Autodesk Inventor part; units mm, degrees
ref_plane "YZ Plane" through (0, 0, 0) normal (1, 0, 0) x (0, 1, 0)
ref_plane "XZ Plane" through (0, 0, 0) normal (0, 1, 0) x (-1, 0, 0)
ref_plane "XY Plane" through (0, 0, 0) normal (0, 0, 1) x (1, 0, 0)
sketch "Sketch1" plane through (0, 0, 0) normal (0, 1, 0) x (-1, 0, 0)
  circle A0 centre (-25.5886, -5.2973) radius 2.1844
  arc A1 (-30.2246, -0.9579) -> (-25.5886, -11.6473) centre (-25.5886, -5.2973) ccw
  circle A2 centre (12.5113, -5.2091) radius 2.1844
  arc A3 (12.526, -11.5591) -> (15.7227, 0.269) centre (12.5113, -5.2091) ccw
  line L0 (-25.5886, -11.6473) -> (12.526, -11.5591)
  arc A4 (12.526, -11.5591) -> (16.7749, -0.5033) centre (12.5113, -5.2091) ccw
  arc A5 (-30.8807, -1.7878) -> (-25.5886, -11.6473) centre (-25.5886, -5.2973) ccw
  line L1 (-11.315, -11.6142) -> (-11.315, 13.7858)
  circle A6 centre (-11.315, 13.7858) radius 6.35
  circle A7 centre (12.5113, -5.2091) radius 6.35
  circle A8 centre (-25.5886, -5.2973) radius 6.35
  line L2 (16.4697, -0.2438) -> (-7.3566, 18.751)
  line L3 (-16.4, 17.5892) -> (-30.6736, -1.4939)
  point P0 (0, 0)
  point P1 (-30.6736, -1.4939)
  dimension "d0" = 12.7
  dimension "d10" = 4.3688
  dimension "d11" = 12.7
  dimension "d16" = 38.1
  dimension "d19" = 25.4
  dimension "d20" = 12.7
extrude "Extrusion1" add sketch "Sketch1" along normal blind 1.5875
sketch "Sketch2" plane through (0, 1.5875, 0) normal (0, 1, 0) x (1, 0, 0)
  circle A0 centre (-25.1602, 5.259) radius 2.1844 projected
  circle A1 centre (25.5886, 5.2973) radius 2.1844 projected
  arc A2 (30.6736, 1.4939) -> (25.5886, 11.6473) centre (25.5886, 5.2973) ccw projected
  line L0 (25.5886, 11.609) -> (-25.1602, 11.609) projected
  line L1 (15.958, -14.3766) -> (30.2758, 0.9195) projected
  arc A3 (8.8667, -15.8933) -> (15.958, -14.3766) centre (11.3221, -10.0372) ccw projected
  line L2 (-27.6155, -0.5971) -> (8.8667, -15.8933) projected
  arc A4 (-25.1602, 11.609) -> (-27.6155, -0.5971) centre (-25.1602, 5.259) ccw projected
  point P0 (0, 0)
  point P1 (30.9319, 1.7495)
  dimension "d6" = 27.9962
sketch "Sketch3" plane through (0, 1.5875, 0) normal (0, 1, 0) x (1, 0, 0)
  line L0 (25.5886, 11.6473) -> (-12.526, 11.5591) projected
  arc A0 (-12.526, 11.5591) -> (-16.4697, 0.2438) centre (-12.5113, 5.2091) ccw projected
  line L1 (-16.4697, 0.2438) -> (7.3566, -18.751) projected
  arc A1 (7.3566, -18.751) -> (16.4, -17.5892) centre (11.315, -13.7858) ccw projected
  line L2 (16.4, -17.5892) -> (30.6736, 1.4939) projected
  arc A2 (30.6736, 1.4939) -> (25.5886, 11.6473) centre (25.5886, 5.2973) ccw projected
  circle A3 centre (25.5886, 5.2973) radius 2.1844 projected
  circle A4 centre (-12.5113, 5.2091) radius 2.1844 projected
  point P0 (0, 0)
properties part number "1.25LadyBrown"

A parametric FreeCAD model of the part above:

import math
import FreeCAD as App
import Part
import Sketcher
from FreeCAD import Vector
Q = App.Units.Quantity

doc = App.newDocument("Part")
body = doc.addObject("PartDesign::Body", "Body")

# Sketch on XZ plane
sketch1 = body.newObject("Sketcher::SketchObject", "Sketch")
sketch1.AttachmentSupport = (doc.getObject("XZ_Plane"), [""])
sketch1.MapMode = "FlatFace"
sketch1.addGeometry([
    Part.LineSegment(Vector(25.5886, -11.6473, 0), Vector(-12.526, -11.5591, 0)),  # 0
    Part.ArcOfCircle(Part.Circle(Vector(-12.5113, -5.2091, 0), Vector(0, 0, 1), 6.350017), math.radians(128.562296), math.radians(269.867363)),  # 1
    Part.LineSegment(Vector(-16.4697, -0.2438, 0), Vector(7.3566, 18.751, 0)),  # 2
    Part.ArcOfCircle(Part.Circle(Vector(11.315, 13.7858, 0), Vector(0, 0, 1), 6.35), math.radians(36.795188), math.radians(128.562858)),  # 3
    Part.LineSegment(Vector(16.4, 17.5892, 0), Vector(30.6736, -1.4939, 0)),  # 4
    Part.ArcOfCircle(Part.Circle(Vector(25.5886, -5.2973, 0), Vector(0, 0, 1), 6.35), math.radians(-90), math.radians(36.795188)),  # 5
    Part.Circle(Vector(25.5886, -5.2973, 0), Vector(0, 0, 1), 2.1844),  # 6
    Part.Circle(Vector(-12.5113, -5.2091, 0), Vector(0, 0, 1), 2.1844),  # 7
], False)
sketch1.addConstraint([
    Sketcher.Constraint("Coincident", 0, 2, 1, 2),
    Sketcher.Constraint("Coincident", 1, 1, 2, 1),
    Sketcher.Constraint("Coincident", 2, 2, 3, 2),
    Sketcher.Constraint("Coincident", 3, 1, 4, 1),
    Sketcher.Constraint("Coincident", 4, 2, 5, 2),
    Sketcher.Constraint("Coincident", 5, 1, 0, 1),
    Sketcher.Constraint("Coincident", 6, 3, 5, 3),
    Sketcher.Constraint("Coincident", 7, 3, 1, 3),
    Sketcher.Constraint("Radius", 1, Q("0.25 in")),
    Sketcher.Constraint("Radius", 3, Q("0.25 in")),
    Sketcher.Constraint("Radius", 5, Q("0.25 in")),
    Sketcher.Constraint("Diameter", 6, Q("0.172 in")),
    Sketcher.Constraint("Diameter", 7, Q("0.172 in")),
    Sketcher.Constraint("DistanceX", 1, 3, 5, 3, Q("1.5 in")),
    Sketcher.Constraint("DistanceX", 2, 2, 4, 2, Q("0.918 in")),
    Sketcher.Constraint("DistanceY", 1, 1, -1, 1, Q("0.0096 in")),
    Sketcher.Constraint("DistanceY", 5, 3, 3, 3, Q("0.7513 in")),
    Sketcher.Constraint("DistanceX", 2, 2, 5, 3, Q("0.7178 in")),
    Sketcher.Constraint("DistanceY", 1, 3, 2, 2, Q("0.9433 in")),
    Sketcher.Constraint("DistanceX", 3, 3, 3, 1, Q("0.2002 in")),
    Sketcher.Constraint("DistanceX", 5, 1, 4, 2, Q("0.2002 in")),
    Sketcher.Constraint("Distance", 0, Q("38.1147 mm")),
    Sketcher.Constraint("Distance", 2, Q("30.4712 mm")),
    Sketcher.Constraint("Distance", 4, Q("23.8307 mm")),
    Sketcher.Constraint("DistanceX", 1, 3, -1, 1, Q("12.5113 mm")),
])
pad1 = body.newObject("PartDesign::Pad", "Pad")
pad1.Profile = sketch1
pad1.Length = Q("0.0625 in")
pad1.Reversed = True

doc.recompute()
